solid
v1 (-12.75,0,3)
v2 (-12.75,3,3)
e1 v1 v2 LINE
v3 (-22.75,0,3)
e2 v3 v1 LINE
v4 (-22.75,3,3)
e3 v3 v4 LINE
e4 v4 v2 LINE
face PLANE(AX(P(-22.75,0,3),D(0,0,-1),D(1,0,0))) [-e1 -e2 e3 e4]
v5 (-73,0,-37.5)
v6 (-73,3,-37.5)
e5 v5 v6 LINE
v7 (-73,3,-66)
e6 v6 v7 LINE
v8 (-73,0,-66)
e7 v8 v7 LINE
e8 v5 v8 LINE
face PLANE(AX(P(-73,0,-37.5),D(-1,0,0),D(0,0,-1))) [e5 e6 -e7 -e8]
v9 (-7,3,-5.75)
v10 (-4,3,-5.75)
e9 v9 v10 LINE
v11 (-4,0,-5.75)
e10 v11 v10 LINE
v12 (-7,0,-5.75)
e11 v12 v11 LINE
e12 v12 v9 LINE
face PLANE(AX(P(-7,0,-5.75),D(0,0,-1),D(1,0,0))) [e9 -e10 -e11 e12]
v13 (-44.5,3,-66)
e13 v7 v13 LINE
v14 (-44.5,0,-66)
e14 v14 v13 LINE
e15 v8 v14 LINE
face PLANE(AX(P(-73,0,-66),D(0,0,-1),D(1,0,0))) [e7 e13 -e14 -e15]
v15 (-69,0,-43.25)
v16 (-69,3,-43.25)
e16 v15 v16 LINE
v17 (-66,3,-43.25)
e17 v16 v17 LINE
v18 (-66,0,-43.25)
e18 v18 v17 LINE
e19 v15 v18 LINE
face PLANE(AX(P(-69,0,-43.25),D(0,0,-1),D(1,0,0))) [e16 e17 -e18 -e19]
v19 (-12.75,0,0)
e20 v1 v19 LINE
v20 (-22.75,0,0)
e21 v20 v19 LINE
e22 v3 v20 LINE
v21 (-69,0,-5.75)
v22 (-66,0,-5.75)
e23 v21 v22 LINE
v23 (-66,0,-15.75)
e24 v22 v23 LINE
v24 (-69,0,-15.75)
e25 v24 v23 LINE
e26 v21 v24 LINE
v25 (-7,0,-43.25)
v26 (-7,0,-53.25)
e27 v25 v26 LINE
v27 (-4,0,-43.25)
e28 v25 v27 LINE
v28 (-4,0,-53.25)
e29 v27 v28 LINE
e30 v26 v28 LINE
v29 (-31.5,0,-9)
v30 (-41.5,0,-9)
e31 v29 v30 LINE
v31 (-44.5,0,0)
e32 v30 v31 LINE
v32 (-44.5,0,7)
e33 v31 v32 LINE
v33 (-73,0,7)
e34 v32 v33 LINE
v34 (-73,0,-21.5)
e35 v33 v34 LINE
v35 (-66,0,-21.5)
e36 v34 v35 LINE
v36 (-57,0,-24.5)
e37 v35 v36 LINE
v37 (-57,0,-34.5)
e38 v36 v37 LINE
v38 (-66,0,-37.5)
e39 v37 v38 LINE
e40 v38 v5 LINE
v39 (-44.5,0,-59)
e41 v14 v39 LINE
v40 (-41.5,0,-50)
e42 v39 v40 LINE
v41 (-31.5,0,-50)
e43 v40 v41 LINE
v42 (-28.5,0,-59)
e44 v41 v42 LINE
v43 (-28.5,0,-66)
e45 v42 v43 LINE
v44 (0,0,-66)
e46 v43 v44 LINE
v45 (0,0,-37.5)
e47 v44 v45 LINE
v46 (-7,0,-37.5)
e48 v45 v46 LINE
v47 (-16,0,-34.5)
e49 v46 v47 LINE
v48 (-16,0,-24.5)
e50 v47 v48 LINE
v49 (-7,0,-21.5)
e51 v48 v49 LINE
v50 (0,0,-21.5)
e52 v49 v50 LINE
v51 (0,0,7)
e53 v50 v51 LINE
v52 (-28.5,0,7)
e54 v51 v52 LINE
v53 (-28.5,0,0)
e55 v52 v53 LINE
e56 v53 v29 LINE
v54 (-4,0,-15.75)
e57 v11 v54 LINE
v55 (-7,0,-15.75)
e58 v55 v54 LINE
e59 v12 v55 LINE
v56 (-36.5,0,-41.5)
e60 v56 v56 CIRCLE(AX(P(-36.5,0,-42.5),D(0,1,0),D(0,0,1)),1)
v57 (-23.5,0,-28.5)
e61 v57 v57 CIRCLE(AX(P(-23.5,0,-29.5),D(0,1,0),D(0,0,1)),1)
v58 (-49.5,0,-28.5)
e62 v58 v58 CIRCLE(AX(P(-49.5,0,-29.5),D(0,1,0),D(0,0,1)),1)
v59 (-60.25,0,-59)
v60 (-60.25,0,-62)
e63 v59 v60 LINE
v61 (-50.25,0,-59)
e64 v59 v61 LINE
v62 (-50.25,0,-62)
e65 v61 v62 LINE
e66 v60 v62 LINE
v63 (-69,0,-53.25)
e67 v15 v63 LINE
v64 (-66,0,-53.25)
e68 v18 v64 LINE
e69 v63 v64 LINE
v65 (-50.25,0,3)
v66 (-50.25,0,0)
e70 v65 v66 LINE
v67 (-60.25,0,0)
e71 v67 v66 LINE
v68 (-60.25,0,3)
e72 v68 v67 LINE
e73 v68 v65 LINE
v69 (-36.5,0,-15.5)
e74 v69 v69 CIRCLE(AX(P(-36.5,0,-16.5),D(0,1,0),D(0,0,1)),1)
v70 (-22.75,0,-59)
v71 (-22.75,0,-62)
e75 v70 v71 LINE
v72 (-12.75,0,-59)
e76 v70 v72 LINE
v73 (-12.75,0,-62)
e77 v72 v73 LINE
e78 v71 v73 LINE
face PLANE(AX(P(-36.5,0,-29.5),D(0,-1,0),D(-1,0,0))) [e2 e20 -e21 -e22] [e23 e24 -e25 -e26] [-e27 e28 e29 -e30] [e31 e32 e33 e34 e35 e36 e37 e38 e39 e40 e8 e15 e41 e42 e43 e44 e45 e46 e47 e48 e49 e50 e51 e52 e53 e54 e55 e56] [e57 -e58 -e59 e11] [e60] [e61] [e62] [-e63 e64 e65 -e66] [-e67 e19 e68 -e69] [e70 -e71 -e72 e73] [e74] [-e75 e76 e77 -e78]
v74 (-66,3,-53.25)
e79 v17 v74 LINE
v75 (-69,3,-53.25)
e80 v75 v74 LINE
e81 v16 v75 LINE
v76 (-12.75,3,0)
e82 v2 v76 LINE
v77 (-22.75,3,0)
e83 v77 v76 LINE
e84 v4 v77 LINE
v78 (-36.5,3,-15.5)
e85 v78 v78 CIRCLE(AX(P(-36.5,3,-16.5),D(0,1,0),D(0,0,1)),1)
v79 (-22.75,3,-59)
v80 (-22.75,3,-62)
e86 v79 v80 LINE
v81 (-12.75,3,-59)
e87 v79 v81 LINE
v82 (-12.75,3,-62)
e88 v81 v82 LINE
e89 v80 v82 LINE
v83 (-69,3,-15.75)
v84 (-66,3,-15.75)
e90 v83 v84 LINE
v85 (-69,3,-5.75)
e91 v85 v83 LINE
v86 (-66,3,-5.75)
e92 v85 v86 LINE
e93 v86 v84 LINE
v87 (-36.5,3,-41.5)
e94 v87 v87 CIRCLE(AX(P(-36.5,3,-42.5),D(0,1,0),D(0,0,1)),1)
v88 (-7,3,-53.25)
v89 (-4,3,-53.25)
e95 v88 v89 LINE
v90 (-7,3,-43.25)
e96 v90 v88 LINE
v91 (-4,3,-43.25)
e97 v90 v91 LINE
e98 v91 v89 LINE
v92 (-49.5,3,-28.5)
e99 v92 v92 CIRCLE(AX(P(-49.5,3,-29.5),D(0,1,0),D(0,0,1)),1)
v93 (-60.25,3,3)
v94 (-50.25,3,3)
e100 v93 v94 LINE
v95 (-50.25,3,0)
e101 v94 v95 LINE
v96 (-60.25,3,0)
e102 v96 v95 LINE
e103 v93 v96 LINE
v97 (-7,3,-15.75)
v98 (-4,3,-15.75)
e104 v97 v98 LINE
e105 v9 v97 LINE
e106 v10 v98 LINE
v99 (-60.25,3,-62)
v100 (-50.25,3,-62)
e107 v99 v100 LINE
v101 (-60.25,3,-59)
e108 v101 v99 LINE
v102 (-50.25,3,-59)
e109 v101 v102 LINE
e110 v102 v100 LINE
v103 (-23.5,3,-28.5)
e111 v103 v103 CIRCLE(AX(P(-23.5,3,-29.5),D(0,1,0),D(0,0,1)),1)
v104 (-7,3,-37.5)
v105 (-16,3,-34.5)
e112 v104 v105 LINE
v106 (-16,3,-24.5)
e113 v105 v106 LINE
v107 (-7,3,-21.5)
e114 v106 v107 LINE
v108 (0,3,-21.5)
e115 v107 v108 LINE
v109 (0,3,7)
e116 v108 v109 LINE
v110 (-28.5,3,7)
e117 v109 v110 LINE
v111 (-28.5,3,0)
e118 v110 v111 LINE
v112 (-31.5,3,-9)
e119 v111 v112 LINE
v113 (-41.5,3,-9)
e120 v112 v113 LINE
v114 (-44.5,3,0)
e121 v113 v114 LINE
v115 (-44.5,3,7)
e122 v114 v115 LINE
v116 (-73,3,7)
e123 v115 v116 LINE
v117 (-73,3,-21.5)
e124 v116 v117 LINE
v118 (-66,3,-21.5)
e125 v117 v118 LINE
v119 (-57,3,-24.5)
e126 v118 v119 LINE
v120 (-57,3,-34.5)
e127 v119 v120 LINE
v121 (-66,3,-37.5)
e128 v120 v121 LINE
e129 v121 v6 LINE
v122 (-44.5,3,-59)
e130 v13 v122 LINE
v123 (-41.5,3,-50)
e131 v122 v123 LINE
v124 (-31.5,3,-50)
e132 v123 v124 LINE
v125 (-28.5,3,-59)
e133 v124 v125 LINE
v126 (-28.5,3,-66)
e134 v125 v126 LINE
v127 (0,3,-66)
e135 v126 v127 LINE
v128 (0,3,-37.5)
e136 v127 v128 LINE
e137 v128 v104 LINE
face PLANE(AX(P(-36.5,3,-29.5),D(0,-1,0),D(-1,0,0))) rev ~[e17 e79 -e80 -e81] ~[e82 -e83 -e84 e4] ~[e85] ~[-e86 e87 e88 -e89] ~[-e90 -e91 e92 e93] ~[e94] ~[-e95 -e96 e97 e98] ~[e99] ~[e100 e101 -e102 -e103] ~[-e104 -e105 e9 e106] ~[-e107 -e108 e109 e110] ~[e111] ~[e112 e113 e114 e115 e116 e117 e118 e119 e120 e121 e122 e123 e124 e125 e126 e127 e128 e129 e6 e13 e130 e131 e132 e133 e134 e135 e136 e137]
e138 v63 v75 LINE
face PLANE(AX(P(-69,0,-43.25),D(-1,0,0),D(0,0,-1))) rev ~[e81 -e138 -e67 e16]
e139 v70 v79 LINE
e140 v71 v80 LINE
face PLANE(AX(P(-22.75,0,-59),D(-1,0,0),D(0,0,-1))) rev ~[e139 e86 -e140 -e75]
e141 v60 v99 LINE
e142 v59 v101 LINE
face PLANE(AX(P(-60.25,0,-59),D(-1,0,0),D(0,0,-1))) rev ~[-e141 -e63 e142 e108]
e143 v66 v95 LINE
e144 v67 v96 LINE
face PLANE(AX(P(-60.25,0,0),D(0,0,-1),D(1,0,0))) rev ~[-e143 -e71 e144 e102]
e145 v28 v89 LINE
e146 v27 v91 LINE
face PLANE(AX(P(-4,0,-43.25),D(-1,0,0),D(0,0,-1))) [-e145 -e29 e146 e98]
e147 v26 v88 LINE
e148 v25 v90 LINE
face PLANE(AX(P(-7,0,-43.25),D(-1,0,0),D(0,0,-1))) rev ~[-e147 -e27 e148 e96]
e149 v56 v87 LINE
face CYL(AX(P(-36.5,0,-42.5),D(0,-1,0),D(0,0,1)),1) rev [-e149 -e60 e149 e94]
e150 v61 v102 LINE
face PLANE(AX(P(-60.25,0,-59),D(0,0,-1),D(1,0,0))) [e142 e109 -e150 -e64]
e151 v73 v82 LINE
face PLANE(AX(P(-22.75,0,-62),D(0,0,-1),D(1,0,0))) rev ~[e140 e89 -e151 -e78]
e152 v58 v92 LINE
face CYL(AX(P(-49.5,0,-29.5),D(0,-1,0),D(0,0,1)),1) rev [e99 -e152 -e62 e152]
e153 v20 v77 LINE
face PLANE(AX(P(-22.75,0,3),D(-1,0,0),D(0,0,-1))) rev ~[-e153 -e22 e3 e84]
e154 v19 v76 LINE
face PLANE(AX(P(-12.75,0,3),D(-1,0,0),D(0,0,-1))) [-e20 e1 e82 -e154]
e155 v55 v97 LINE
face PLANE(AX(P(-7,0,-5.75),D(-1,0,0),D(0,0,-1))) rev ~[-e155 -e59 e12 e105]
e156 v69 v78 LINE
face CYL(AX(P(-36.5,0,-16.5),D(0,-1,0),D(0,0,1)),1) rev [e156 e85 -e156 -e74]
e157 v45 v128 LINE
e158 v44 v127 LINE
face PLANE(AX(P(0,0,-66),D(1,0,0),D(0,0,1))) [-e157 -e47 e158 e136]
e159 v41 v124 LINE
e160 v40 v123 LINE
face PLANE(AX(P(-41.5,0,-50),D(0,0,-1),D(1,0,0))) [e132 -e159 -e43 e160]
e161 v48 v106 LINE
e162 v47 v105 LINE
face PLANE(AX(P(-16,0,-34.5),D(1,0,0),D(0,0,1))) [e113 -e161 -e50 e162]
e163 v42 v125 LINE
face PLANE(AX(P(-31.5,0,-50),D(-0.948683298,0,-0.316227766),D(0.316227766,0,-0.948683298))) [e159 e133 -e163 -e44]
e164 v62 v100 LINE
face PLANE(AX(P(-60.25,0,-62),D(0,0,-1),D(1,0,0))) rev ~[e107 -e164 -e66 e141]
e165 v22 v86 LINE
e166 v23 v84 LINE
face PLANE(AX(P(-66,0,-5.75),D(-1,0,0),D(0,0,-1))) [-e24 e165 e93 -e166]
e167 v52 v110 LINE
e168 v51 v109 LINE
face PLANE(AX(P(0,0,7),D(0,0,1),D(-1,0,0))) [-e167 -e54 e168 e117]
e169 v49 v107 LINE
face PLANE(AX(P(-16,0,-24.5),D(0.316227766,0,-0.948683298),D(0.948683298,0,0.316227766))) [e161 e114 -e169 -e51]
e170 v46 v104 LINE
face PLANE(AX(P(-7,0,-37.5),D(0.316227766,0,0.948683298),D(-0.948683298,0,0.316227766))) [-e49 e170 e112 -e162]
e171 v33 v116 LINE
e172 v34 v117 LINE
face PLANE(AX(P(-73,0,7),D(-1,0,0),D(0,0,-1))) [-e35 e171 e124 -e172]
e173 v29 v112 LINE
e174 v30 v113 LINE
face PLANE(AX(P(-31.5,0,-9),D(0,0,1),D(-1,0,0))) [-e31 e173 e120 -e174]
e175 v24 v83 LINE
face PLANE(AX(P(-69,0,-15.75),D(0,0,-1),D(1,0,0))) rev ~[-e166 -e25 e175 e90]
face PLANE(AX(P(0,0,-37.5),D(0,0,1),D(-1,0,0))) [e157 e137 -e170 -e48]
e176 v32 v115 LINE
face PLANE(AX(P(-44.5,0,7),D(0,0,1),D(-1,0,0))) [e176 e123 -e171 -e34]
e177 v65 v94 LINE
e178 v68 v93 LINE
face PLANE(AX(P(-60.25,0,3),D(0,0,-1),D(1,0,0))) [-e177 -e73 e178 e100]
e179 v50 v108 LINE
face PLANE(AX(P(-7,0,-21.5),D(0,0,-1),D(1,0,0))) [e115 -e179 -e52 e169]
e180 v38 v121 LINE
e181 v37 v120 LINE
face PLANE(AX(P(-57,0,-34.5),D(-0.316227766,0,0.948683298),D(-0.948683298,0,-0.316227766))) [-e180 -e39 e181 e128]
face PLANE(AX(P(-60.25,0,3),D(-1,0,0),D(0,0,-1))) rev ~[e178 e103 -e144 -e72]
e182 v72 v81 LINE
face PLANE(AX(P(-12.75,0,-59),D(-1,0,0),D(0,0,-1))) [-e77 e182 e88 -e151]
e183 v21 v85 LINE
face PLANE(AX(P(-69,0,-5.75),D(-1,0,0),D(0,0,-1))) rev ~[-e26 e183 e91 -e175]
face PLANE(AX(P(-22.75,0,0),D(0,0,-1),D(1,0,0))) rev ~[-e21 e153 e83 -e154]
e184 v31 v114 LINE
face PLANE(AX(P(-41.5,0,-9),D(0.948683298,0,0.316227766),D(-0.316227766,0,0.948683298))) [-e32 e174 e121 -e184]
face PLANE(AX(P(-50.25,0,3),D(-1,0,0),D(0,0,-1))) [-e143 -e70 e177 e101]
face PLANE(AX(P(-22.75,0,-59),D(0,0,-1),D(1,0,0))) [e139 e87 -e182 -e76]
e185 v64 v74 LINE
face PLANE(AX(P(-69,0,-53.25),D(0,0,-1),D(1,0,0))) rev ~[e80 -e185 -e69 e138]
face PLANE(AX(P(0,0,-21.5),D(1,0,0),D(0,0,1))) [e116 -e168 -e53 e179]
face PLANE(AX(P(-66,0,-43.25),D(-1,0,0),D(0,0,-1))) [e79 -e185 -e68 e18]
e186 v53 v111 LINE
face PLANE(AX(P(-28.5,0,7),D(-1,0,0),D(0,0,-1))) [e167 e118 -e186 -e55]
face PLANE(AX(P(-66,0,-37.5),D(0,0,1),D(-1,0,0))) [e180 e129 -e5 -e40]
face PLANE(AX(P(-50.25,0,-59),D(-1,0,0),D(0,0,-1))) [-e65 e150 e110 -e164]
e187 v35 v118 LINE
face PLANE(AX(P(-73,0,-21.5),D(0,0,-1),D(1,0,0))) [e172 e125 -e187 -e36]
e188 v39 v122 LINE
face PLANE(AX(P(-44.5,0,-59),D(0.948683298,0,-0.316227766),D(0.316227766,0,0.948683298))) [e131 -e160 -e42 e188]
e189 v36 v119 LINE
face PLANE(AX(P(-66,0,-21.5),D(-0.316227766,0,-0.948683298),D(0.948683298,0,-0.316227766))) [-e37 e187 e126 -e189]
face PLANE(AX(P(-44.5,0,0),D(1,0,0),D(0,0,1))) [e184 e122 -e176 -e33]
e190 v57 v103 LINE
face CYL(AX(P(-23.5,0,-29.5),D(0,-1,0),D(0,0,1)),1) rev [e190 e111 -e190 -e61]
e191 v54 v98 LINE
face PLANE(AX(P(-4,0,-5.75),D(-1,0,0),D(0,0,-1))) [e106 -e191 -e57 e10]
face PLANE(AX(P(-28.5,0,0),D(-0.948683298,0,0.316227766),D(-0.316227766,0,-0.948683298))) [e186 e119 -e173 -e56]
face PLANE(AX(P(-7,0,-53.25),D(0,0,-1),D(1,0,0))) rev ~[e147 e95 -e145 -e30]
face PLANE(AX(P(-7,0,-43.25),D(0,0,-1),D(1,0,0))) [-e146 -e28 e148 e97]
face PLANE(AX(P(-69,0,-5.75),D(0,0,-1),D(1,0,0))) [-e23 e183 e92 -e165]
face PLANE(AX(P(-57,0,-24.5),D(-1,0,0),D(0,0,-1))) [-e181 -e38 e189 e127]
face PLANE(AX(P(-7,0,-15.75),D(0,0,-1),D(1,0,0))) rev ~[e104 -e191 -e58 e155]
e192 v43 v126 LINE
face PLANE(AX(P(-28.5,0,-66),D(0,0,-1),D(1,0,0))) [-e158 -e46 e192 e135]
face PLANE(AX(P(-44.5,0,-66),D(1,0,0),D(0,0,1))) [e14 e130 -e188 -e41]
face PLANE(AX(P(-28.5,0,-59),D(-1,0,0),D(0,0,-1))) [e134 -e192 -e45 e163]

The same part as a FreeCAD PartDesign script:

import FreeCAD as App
import Part
import Sketcher


def add_polygon(sketch, points):
    """Adds a closed chain of lines whose ends are joined by coincident constraints."""
    first, n = sketch.GeometryCount, len(points)
    for a, b in zip(points, points[1:] + points[:1]):
        sketch.addGeometry(Part.LineSegment(App.Vector(*a, 0), App.Vector(*b, 0)), False)
    for i in range(n):
        sketch.addConstraint(Sketcher.Constraint("Coincident", first + i, 2, first + (i + 1) % n, 1))

doc = App.newDocument("Part")
body = doc.addObject("PartDesign::Body", "Body")

sketch1 = body.newObject("Sketcher::SketchObject", "Sketch")
sketch1.AttachmentSupport = (doc.getObject("XZ_Plane"), [""])
sketch1.MapMode = "FlatFace"
add_polygon(sketch1, [(-41.5, -9), (-31.5, -9), (-28.5, 0), (-28.5, 7), (0, 7), (0, -21.5), (-7, -21.5), (-16, -24.5), (-16, -34.5), (-7, -37.5), (0, -37.5), (0, -66), (-28.5, -66), (-28.5, -59), (-31.5, -50), (-41.5, -50), (-44.5, -59), (-44.5, -66), (-73, -66), (-73, -37.5), (-66, -37.5), (-57, -34.5), (-57, -24.5), (-66, -21.5), (-73, -21.5), (-73, 7), (-44.5, 7), (-44.5, 0)])
add_polygon(sketch1, [(-22.75, 3), (-22.75, 0), (-12.75, 0), (-12.75, 3)])
add_polygon(sketch1, [(-7, -5.75), (-7, -15.75), (-4, -15.75), (-4, -5.75)])
add_polygon(sketch1, [(-60.25, 3), (-60.25, 0), (-50.25, 0), (-50.25, 3)])
add_polygon(sketch1, [(-69, -5.75), (-69, -15.75), (-66, -15.75), (-66, -5.75)])
sketch1.addGeometry(Part.Circle(App.Vector(-36.5, -16.5, 0), App.Vector(0, 0, 1), 1), False)
sketch1.addGeometry(Part.Circle(App.Vector(-23.5, -29.5, 0), App.Vector(0, 0, 1), 1), False)
add_polygon(sketch1, [(-7, -43.25), (-7, -53.25), (-4, -53.25), (-4, -43.25)])
add_polygon(sketch1, [(-22.75, -59), (-22.75, -62), (-12.75, -62), (-12.75, -59)])
sketch1.addGeometry(Part.Circle(App.Vector(-49.5, -29.5, 0), App.Vector(0, 0, 1), 1), False)
sketch1.addGeometry(Part.Circle(App.Vector(-36.5, -42.5, 0), App.Vector(0, 0, 1), 1), False)
add_polygon(sketch1, [(-69, -43.25), (-69, -53.25), (-66, -53.25), (-66, -43.25)])
add_polygon(sketch1, [(-60.25, -59), (-60.25, -62), (-50.25, -62), (-50.25, -59)])
sketch1.addConstraint([
    Sketcher.Constraint("Horizontal", 0),
    Sketcher.Constraint("Vertical", 2),
    Sketcher.Constraint("Horizontal", 3),
    Sketcher.Constraint("Vertical", 4),
    Sketcher.Constraint("Horizontal", 5),
    Sketcher.Constraint("Vertical", 7),
    Sketcher.Constraint("Horizontal", 9),
    Sketcher.Constraint("Vertical", 10),
    Sketcher.Constraint("Horizontal", 11),
    Sketcher.Constraint("Vertical", 12),
    Sketcher.Constraint("Horizontal", 14),
    Sketcher.Constraint("Vertical", 16),
    Sketcher.Constraint("Horizontal", 17),
    Sketcher.Constraint("Vertical", 18),
    Sketcher.Constraint("Horizontal", 19),
    Sketcher.Constraint("Vertical", 21),
    Sketcher.Constraint("Horizontal", 23),
    Sketcher.Constraint("Vertical", 24),
    Sketcher.Constraint("Horizontal", 25),
    Sketcher.Constraint("Vertical", 26),
    Sketcher.Constraint("Vertical", 28),
    Sketcher.Constraint("Horizontal", 29),
    Sketcher.Constraint("Vertical", 30),
    Sketcher.Constraint("Horizontal", 31),
    Sketcher.Constraint("Vertical", 32),
    Sketcher.Constraint("Horizontal", 33),
    Sketcher.Constraint("Vertical", 34),
    Sketcher.Constraint("Horizontal", 35),
    Sketcher.Constraint("Vertical", 36),
    Sketcher.Constraint("Horizontal", 37),
    Sketcher.Constraint("Vertical", 38),
    Sketcher.Constraint("Horizontal", 39),
    Sketcher.Constraint("Vertical", 40),
    Sketcher.Constraint("Horizontal", 41),
    Sketcher.Constraint("Vertical", 42),
    Sketcher.Constraint("Horizontal", 43),
    Sketcher.Constraint("Vertical", 46),
    Sketcher.Constraint("Horizontal", 47),
    Sketcher.Constraint("Vertical", 48),
    Sketcher.Constraint("Horizontal", 49),
    Sketcher.Constraint("Vertical", 50),
    Sketcher.Constraint("Horizontal", 51),
    Sketcher.Constraint("Vertical", 52),
    Sketcher.Constraint("Horizontal", 53),
    Sketcher.Constraint("Vertical", 56),
    Sketcher.Constraint("Horizontal", 57),
    Sketcher.Constraint("Vertical", 58),
    Sketcher.Constraint("Horizontal", 59),
    Sketcher.Constraint("Vertical", 60),
    Sketcher.Constraint("Horizontal", 61),
    Sketcher.Constraint("Vertical", 62),
    Sketcher.Constraint("Horizontal", 63),
    Sketcher.Constraint("Equal", 44, 45),
    Sketcher.Constraint("Equal", 45, 54),
    Sketcher.Constraint("Equal", 54, 55),
    Sketcher.Constraint("PointOnObject", 1, 2, -1),
    Sketcher.Constraint("PointOnObject", 3, 2, -2),
    Sketcher.Constraint("PointOnObject", 9, 2, -2),
    Sketcher.Constraint("PointOnObject", 26, 2, -1),
    Sketcher.Constraint("PointOnObject", 28, 2, -1),
    Sketcher.Constraint("PointOnObject", 36, 2, -1),
    Sketcher.Constraint("Perpendicular", 1, 8),
    Sketcher.Constraint("Perpendicular", 6, 13),
    Sketcher.Constraint("Perpendicular", 8, 15),
    Sketcher.Constraint("Perpendicular", 13, 20),
    Sketcher.Constraint("Perpendicular", 15, 22),
    Sketcher.Constraint("Perpendicular", 20, 27),
    Sketcher.Constraint("Horizontal", 45, 3, 54, 3),
    Sketcher.Constraint("Horizontal", 12, 2, 15, 2),
    Sketcher.Constraint("Horizontal", 11, 2, 16, 2),
    Sketcher.Constraint("Horizontal", 9, 2, 18, 2),
    Sketcher.Constraint("Horizontal", 7, 2, 20, 2),
    Sketcher.Constraint("Horizontal", 6, 2, 21, 2),
    Sketcher.Constraint("Horizontal", 5, 2, 22, 2),
    Sketcher.Constraint("Horizontal", 3, 2, 24, 2),
    Sketcher.Constraint("Horizontal", 31, 2, 38, 2),
    Sketcher.Constraint("Horizontal", 33, 2, 40, 2),
    Sketcher.Constraint("Horizontal", 35, 2, 42, 2),
    Sketcher.Constraint("Horizontal", 15, 2, 52, 2),
    Sketcher.Constraint("Horizontal", 47, 2, 56, 2),
    Sketcher.Constraint("Horizontal", 49, 2, 58, 2),
    Sketcher.Constraint("Horizontal", 51, 2, 60, 2),
    Sketcher.Constraint("Horizontal", 53, 2, 62, 2),
    Sketcher.Constraint("Vertical", 44, 3, 55, 3),
    Sketcher.Constraint("Vertical", 5, 2, 8, 2),
    Sketcher.Constraint("Vertical", 2, 2, 11, 2),
    Sketcher.Constraint("Vertical", 0, 2, 13, 2),
    Sketcher.Constraint("Vertical", 19, 2, 22, 2),
    Sketcher.Constraint("Vertical", 18, 2, 23, 2),
    Sketcher.Constraint("Vertical", 16, 2, 25, 2),
    Sketcher.Constraint("Vertical", 8, 2, 32, 2),
    Sketcher.Constraint("Vertical", 22, 2, 41, 2),
    Sketcher.Constraint("Vertical", 35, 2, 46, 2),
    Sketcher.Constraint("Vertical", 34, 2, 47, 2),
    Sketcher.Constraint("Vertical", 31, 2, 50, 2),
    Sketcher.Constraint("Vertical", 30, 2, 51, 2),
    Sketcher.Constraint("Vertical", 43, 2, 56, 2),
    Sketcher.Constraint("Vertical", 42, 2, 57, 2),
    Sketcher.Constraint("Vertical", 39, 2, 60, 2),
    Sketcher.Constraint("Vertical", 38, 2, 61, 2),
    Sketcher.Constraint("Equal", 11, 17),
    Sketcher.Constraint("Equal", 9, 19),
    Sketcher.Constraint("Equal", 14, 29),
    Sketcher.Constraint("Equal", 31, 37),
    Sketcher.Constraint("Equal", 35, 41),
    Sketcher.Constraint("Equal", 23, 2),
    Sketcher.Constraint("Equal", 25, 4),
    Sketcher.Constraint("Equal", 63, 7),
    Sketcher.Constraint("Equal", 4, 10),
    Sketcher.Constraint("Equal", 2, 12),
    Sketcher.Constraint("Equal", 59, 28),
    Sketcher.Constraint("Equal", 21, 32),
    Sketcher.Constraint("Equal", 42, 46),
    Sketcher.Constraint("Equal", 38, 50),
    Sketcher.Constraint("Equal", 1, 6),
    Sketcher.Constraint("Diameter", 44, 2.0),
    Sketcher.Constraint("DistanceX", 0, 1, 0, 2, 10.0),
    Sketcher.Constraint("DistanceX", 5, 2, 5, 1, 7.0),
    Sketcher.Constraint("DistanceX", 33, 1, 33, 2, 3.0),
    Sketcher.Constraint("DistanceX", 3, 1, 3, 2, 28.5),
    Sketcher.Constraint("DistanceY", 0, 2, -1, 1, 9.0),
    Sketcher.Constraint("DistanceY", 10, 2, -1, 1, 66.0),
    Sketcher.Constraint("DistanceX", 44, 3, -1, 1, 36.5),
    Sketcher.Constraint("DistanceY", 44, 3, -1, 1, 16.5),
    Sketcher.Constraint("DistanceX", 45, 3, -1, 1, 23.5),
    Sketcher.Constraint("DistanceY", 45, 3, -1, 1, 29.5),
    Sketcher.Constraint("DistanceX", 54, 3, -1, 1, 49.5),
    Sketcher.Constraint("DistanceY", 55, 3, -1, 1, 42.5),
    Sketcher.Constraint("DistanceX", 28, 2, -1, 1, 22.75),
    Sketcher.Constraint("DistanceY", 32, 2, -1, 1, 15.75),
    Sketcher.Constraint("DistanceX", 36, 2, -1, 1, 60.25),
    Sketcher.Constraint("DistanceY", 46, 2, -1, 1, 53.25),
])
pad1 = body.newObject("PartDesign::Pad", "Pad")
pad1.Profile = sketch1
pad1.Length = 3
pad1.Reversed = True

doc.recompute()
